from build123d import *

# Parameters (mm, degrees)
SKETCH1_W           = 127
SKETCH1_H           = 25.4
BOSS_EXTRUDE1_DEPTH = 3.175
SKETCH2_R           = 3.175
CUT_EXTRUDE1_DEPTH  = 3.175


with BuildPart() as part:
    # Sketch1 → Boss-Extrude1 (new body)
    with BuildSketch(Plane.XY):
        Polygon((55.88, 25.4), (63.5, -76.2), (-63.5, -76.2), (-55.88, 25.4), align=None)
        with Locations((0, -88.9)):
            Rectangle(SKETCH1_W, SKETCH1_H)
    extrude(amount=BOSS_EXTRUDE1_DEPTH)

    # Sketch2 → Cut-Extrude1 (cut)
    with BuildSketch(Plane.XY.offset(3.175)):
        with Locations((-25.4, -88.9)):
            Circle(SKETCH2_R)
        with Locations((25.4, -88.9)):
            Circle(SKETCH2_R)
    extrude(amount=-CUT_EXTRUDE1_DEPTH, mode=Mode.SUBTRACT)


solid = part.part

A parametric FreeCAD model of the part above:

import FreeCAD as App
import Part
import Sketcher
Q = App.Units.Quantity

doc = App.newDocument("Part")
params = doc.addObject("Spreadsheet::Sheet", "Params")
for row, (alias, value) in enumerate([
    ("sketch1_width", "5 in"),
    ("sketch1_height", "1 in"),
    ("sketch1_width2", "4.4 in"),
    ("pad1_length", "0.125 in"),
    ("sketch2_diameter", "0.25 in"),
    ("pocket1_length", "0.125 in"),
], start=1):
    params.set(f"A{row}", alias)
    params.set(f"B{row}", "=" + value)
    params.setAlias(f"B{row}", alias)

body = doc.addObject("PartDesign::Body", "Body")

# Sketch on XY plane
sketch1 = body.newObject("Sketcher::SketchObject", "Sketch")
sketch1.AttachmentSupport = (doc.getObject("XY_Plane"), [""])
sketch1.MapMode = "FlatFace"
sketch1.addGeometry(Part.LineSegment(App.Vector(64, -76, 0), App.Vector(56, 25, 0)), False)
sketch1.addGeometry(Part.LineSegment(App.Vector(56, 25, 0), App.Vector(-56, 25, 0)), False)
sketch1.addGeometry(Part.LineSegment(App.Vector(-56, 25, 0), App.Vector(-64, -76, 0)), False)
sketch1.addGeometry(Part.LineSegment(App.Vector(-64, -76, 0), App.Vector(-64, -102, 0)), False)
sketch1.addGeometry(Part.LineSegment(App.Vector(-64, -102, 0), App.Vector(64, -102, 0)), False)
sketch1.addGeometry(Part.LineSegment(App.Vector(64, -102, 0), App.Vector(64, -76, 0)), False)
sketch1.addConstraint(Sketcher.Constraint("Coincident", 0, 2, 1, 1))
sketch1.addConstraint(Sketcher.Constraint("Coincident", 1, 2, 2, 1))
sketch1.addConstraint(Sketcher.Constraint("Coincident", 2, 2, 3, 1))
sketch1.addConstraint(Sketcher.Constraint("Coincident", 3, 2, 4, 1))
sketch1.addConstraint(Sketcher.Constraint("Coincident", 4, 2, 5, 1))
sketch1.addConstraint(Sketcher.Constraint("Coincident", 5, 2, 0, 1))
sketch1.addConstraint(Sketcher.Constraint("Horizontal", 1))
sketch1.addConstraint(Sketcher.Constraint("Vertical", 3))
sketch1.addConstraint(Sketcher.Constraint("Horizontal", 4))
sketch1.addConstraint(Sketcher.Constraint("Vertical", 5))
sketch1.addConstraint(Sketcher.Constraint("Symmetric", 2, 2, 5, 2, -2))
sketch1.addConstraint(Sketcher.Constraint("Equal", 0, 2))
sketch1.addConstraint(Sketcher.Constraint("DistanceX", 4, 1, 4, 2, Q("5 in")))
sketch1.addConstraint(Sketcher.Constraint("DistanceY", 3, 2, 3, 1, Q("1 in")))
sketch1.addConstraint(Sketcher.Constraint("DistanceX", 1, 2, 1, 1, Q("4.4 in")))
sketch1.addConstraint(Sketcher.Constraint("DistanceY", -1, 1, 0, 2, Q("1 in")))
sketch1.addConstraint(Sketcher.Constraint("DistanceY", 2, 2, -1, 1, Q("3 in")))
sketch1.setExpression("Constraints[12]", "Params.sketch1_width")
sketch1.setExpression("Constraints[13]", "Params.sketch1_height")
sketch1.setExpression("Constraints[14]", "Params.sketch1_width2")
pad1 = body.newObject("PartDesign::Pad", "Pad")
pad1.Profile = sketch1
pad1.setExpression("Length", "Params.pad1_length")

# Sketch on XY plane
sketch2 = body.newObject("Sketcher::SketchObject", "Sketch001")
sketch2.AttachmentSupport = (doc.getObject("XY_Plane"), [""])
sketch2.MapMode = "FlatFace"
sketch2.AttachmentOffset = App.Placement(App.Vector(0, 0, 0.125 * 25.4), App.Rotation())
sketch2.addGeometry(Part.Circle(App.Vector(-25.4, -88.9, 0), App.Vector(0, 0, 1), 3.2), False)
sketch2.addGeometry(Part.Circle(App.Vector(25.4, -88.9, 0), App.Vector(0, 0, 1), 3.2), False)
sketch2.addConstraint(Sketcher.Constraint("Equal", 0, 1))
sketch2.addConstraint(Sketcher.Constraint("Symmetric", 0, 3, 1, 3, -2))
sketch2.addConstraint(Sketcher.Constraint("Diameter", 0, Q("0.25 in")))
sketch2.addConstraint(Sketcher.Constraint("DistanceX", 0, 3, -1, 1, Q("1 in")))
sketch2.addConstraint(Sketcher.Constraint("DistanceY", 0, 3, -1, 1, Q("3.5 in")))
sketch2.setExpression("Constraints[2]", "Params.sketch2_diameter")
pocket1 = body.newObject("PartDesign::Pocket", "Pocket")
pocket1.Profile = sketch2
pocket1.setExpression("Length", "Params.pocket1_length")

doc.recompute()
